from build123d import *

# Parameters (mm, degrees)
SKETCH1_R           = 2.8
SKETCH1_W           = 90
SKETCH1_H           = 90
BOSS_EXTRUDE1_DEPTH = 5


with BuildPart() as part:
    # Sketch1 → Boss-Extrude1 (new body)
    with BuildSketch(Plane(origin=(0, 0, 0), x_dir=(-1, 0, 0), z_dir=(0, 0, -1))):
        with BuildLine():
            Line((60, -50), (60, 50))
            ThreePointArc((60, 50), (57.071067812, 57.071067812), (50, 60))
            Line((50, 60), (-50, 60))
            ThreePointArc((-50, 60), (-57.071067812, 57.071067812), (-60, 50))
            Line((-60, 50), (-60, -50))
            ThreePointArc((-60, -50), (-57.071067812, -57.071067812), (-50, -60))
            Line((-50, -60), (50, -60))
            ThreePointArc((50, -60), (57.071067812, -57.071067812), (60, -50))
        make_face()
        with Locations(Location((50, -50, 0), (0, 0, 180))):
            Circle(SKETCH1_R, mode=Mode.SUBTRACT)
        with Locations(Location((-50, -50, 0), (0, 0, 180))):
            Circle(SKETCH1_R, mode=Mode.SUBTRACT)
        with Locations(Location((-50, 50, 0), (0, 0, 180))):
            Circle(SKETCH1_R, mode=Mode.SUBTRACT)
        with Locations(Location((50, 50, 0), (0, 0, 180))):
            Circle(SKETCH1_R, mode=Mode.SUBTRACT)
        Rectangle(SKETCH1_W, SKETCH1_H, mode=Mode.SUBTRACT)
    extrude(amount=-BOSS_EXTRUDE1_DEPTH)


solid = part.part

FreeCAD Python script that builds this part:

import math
import FreeCAD as App
import Part
import Sketcher

V = App.Vector
Q = App.Units.Quantity

doc = App.newDocument("Part")
body = doc.addObject("PartDesign::Body", "Body")

# Sketch on XY plane
sketch1 = body.newObject("Sketcher::SketchObject", "Sketch")
sketch1.AttachmentSupport = (doc.getObject("XY_Plane"), [""])
sketch1.MapMode = "FlatFace"
sketch1.addGeometry(Part.LineSegment(V(-60, -50, 0), V(-60, 50, 0)), False)
sketch1.addGeometry(Part.ArcOfCircle(Part.Circle(V(-50, 50, 0), V(0, 0, 1), 10), math.radians(90), math.radians(180)), False)
sketch1.addGeometry(Part.LineSegment(V(-50, 60, 0), V(50, 60, 0)), False)
sketch1.addGeometry(Part.ArcOfCircle(Part.Circle(V(50, 50, 0), V(0, 0, 1), 10), math.radians(0), math.radians(90)), False)
sketch1.addGeometry(Part.LineSegment(V(60, 50, 0), V(60, -50, 0)), False)
sketch1.addGeometry(Part.ArcOfCircle(Part.Circle(V(50, -50, 0), V(0, 0, 1), 10), math.radians(-90), math.radians(0)), False)
sketch1.addGeometry(Part.LineSegment(V(50, -60, 0), V(-50, -60, 0)), False)
sketch1.addGeometry(Part.ArcOfCircle(Part.Circle(V(-50, -50, 0), V(0, 0, 1), 10), math.radians(180), math.radians(270)), False)
sketch1.addGeometry(Part.Circle(V(50, -50, 0), V(0, 0, 1), 2.8), False)
sketch1.addGeometry(Part.Circle(V(-50, -50, 0), V(0, 0, 1), 2.8), False)
sketch1.addGeometry(Part.Circle(V(50, 50, 0), V(0, 0, 1), 2.8), False)
sketch1.addGeometry(Part.LineSegment(V(-45, -45, 0), V(45, -45, 0)), False)
sketch1.addGeometry(Part.LineSegment(V(45, -45, 0), V(45, 45, 0)), False)
sketch1.addGeometry(Part.LineSegment(V(45, 45, 0), V(-45, 45, 0)), False)
sketch1.addGeometry(Part.LineSegment(V(-45, 45, 0), V(-45, -45, 0)), False)
sketch1.addGeometry(Part.Circle(V(-50, 50, 0), V(0, 0, 1), 2.8), False)
sketch1.addConstraint(Sketcher.Constraint("Tangent", 0, 2, 1, 2))
sketch1.addConstraint(Sketcher.Constraint("Tangent", 1, 1, 2, 1))
sketch1.addConstraint(Sketcher.Constraint("Tangent", 2, 2, 3, 2))
sketch1.addConstraint(Sketcher.Constraint("Tangent", 3, 1, 4, 1))
sketch1.addConstraint(Sketcher.Constraint("Tangent", 4, 2, 5, 2))
sketch1.addConstraint(Sketcher.Constraint("Tangent", 5, 1, 6, 1))
sketch1.addConstraint(Sketcher.Constraint("Tangent", 6, 2, 7, 2))
sketch1.addConstraint(Sketcher.Constraint("Tangent", 7, 1, 0, 1))
sketch1.addConstraint(Sketcher.Constraint("Coincident", 11, 2, 12, 1))
sketch1.addConstraint(Sketcher.Constraint("Coincident", 12, 2, 13, 1))
sketch1.addConstraint(Sketcher.Constraint("Coincident", 13, 2, 14, 1))
sketch1.addConstraint(Sketcher.Constraint("Coincident", 14, 2, 11, 1))
sketch1.addConstraint(Sketcher.Constraint("Vertical", 0))
sketch1.addConstraint(Sketcher.Constraint("Horizontal", 2))
sketch1.addConstraint(Sketcher.Constraint("Vertical", 4))
sketch1.addConstraint(Sketcher.Constraint("Horizontal", 6))
sketch1.addConstraint(Sketcher.Constraint("Horizontal", 11))
sketch1.addConstraint(Sketcher.Constraint("Vertical", 12))
sketch1.addConstraint(Sketcher.Constraint("Horizontal", 13))
sketch1.addConstraint(Sketcher.Constraint("Vertical", 14))
sketch1.addConstraint(Sketcher.Constraint("Coincident", 8, 3, 5, 3))
sketch1.addConstraint(Sketcher.Constraint("Coincident", 9, 3, 7, 3))
sketch1.addConstraint(Sketcher.Constraint("Coincident", 10, 3, 3, 3))
sketch1.addConstraint(Sketcher.Constraint("Coincident", 15, 3, 1, 3))
sketch1.addConstraint(Sketcher.Constraint("Equal", 1, 3))
sketch1.addConstraint(Sketcher.Constraint("Equal", 3, 5))
sketch1.addConstraint(Sketcher.Constraint("Equal", 5, 7))
sketch1.addConstraint(Sketcher.Constraint("Equal", 8, 9))
sketch1.addConstraint(Sketcher.Constraint("Equal", 9, 10))
sketch1.addConstraint(Sketcher.Constraint("Equal", 10, 15))
sketch1.addConstraint(Sketcher.Constraint("Symmetric", 1, 3, 5, 3, -1, 1))
sketch1.addConstraint(Sketcher.Constraint("Symmetric", 11, 2, 13, 2, -1, 1))
sketch1.addConstraint(Sketcher.Constraint("Equal", 6, 0))
sketch1.addConstraint(Sketcher.Constraint("Equal", 13, 12))
sketch1.addConstraint(Sketcher.Constraint("Radius", 1, Q("10 mm")))
sketch1.addConstraint(Sketcher.Constraint("Diameter", 8, Q("5.6 mm")))
sketch1.addConstraint(Sketcher.Constraint("DistanceX", 2, 1, 2, 2, Q("100 mm")))
sketch1.addConstraint(Sketcher.Constraint("DistanceX", 11, 1, 11, 2, Q("90 mm")))
pad1 = body.newObject("PartDesign::Pad", "Pad")
pad1.Profile = sketch1
pad1.Length = 5

doc.recompute()
